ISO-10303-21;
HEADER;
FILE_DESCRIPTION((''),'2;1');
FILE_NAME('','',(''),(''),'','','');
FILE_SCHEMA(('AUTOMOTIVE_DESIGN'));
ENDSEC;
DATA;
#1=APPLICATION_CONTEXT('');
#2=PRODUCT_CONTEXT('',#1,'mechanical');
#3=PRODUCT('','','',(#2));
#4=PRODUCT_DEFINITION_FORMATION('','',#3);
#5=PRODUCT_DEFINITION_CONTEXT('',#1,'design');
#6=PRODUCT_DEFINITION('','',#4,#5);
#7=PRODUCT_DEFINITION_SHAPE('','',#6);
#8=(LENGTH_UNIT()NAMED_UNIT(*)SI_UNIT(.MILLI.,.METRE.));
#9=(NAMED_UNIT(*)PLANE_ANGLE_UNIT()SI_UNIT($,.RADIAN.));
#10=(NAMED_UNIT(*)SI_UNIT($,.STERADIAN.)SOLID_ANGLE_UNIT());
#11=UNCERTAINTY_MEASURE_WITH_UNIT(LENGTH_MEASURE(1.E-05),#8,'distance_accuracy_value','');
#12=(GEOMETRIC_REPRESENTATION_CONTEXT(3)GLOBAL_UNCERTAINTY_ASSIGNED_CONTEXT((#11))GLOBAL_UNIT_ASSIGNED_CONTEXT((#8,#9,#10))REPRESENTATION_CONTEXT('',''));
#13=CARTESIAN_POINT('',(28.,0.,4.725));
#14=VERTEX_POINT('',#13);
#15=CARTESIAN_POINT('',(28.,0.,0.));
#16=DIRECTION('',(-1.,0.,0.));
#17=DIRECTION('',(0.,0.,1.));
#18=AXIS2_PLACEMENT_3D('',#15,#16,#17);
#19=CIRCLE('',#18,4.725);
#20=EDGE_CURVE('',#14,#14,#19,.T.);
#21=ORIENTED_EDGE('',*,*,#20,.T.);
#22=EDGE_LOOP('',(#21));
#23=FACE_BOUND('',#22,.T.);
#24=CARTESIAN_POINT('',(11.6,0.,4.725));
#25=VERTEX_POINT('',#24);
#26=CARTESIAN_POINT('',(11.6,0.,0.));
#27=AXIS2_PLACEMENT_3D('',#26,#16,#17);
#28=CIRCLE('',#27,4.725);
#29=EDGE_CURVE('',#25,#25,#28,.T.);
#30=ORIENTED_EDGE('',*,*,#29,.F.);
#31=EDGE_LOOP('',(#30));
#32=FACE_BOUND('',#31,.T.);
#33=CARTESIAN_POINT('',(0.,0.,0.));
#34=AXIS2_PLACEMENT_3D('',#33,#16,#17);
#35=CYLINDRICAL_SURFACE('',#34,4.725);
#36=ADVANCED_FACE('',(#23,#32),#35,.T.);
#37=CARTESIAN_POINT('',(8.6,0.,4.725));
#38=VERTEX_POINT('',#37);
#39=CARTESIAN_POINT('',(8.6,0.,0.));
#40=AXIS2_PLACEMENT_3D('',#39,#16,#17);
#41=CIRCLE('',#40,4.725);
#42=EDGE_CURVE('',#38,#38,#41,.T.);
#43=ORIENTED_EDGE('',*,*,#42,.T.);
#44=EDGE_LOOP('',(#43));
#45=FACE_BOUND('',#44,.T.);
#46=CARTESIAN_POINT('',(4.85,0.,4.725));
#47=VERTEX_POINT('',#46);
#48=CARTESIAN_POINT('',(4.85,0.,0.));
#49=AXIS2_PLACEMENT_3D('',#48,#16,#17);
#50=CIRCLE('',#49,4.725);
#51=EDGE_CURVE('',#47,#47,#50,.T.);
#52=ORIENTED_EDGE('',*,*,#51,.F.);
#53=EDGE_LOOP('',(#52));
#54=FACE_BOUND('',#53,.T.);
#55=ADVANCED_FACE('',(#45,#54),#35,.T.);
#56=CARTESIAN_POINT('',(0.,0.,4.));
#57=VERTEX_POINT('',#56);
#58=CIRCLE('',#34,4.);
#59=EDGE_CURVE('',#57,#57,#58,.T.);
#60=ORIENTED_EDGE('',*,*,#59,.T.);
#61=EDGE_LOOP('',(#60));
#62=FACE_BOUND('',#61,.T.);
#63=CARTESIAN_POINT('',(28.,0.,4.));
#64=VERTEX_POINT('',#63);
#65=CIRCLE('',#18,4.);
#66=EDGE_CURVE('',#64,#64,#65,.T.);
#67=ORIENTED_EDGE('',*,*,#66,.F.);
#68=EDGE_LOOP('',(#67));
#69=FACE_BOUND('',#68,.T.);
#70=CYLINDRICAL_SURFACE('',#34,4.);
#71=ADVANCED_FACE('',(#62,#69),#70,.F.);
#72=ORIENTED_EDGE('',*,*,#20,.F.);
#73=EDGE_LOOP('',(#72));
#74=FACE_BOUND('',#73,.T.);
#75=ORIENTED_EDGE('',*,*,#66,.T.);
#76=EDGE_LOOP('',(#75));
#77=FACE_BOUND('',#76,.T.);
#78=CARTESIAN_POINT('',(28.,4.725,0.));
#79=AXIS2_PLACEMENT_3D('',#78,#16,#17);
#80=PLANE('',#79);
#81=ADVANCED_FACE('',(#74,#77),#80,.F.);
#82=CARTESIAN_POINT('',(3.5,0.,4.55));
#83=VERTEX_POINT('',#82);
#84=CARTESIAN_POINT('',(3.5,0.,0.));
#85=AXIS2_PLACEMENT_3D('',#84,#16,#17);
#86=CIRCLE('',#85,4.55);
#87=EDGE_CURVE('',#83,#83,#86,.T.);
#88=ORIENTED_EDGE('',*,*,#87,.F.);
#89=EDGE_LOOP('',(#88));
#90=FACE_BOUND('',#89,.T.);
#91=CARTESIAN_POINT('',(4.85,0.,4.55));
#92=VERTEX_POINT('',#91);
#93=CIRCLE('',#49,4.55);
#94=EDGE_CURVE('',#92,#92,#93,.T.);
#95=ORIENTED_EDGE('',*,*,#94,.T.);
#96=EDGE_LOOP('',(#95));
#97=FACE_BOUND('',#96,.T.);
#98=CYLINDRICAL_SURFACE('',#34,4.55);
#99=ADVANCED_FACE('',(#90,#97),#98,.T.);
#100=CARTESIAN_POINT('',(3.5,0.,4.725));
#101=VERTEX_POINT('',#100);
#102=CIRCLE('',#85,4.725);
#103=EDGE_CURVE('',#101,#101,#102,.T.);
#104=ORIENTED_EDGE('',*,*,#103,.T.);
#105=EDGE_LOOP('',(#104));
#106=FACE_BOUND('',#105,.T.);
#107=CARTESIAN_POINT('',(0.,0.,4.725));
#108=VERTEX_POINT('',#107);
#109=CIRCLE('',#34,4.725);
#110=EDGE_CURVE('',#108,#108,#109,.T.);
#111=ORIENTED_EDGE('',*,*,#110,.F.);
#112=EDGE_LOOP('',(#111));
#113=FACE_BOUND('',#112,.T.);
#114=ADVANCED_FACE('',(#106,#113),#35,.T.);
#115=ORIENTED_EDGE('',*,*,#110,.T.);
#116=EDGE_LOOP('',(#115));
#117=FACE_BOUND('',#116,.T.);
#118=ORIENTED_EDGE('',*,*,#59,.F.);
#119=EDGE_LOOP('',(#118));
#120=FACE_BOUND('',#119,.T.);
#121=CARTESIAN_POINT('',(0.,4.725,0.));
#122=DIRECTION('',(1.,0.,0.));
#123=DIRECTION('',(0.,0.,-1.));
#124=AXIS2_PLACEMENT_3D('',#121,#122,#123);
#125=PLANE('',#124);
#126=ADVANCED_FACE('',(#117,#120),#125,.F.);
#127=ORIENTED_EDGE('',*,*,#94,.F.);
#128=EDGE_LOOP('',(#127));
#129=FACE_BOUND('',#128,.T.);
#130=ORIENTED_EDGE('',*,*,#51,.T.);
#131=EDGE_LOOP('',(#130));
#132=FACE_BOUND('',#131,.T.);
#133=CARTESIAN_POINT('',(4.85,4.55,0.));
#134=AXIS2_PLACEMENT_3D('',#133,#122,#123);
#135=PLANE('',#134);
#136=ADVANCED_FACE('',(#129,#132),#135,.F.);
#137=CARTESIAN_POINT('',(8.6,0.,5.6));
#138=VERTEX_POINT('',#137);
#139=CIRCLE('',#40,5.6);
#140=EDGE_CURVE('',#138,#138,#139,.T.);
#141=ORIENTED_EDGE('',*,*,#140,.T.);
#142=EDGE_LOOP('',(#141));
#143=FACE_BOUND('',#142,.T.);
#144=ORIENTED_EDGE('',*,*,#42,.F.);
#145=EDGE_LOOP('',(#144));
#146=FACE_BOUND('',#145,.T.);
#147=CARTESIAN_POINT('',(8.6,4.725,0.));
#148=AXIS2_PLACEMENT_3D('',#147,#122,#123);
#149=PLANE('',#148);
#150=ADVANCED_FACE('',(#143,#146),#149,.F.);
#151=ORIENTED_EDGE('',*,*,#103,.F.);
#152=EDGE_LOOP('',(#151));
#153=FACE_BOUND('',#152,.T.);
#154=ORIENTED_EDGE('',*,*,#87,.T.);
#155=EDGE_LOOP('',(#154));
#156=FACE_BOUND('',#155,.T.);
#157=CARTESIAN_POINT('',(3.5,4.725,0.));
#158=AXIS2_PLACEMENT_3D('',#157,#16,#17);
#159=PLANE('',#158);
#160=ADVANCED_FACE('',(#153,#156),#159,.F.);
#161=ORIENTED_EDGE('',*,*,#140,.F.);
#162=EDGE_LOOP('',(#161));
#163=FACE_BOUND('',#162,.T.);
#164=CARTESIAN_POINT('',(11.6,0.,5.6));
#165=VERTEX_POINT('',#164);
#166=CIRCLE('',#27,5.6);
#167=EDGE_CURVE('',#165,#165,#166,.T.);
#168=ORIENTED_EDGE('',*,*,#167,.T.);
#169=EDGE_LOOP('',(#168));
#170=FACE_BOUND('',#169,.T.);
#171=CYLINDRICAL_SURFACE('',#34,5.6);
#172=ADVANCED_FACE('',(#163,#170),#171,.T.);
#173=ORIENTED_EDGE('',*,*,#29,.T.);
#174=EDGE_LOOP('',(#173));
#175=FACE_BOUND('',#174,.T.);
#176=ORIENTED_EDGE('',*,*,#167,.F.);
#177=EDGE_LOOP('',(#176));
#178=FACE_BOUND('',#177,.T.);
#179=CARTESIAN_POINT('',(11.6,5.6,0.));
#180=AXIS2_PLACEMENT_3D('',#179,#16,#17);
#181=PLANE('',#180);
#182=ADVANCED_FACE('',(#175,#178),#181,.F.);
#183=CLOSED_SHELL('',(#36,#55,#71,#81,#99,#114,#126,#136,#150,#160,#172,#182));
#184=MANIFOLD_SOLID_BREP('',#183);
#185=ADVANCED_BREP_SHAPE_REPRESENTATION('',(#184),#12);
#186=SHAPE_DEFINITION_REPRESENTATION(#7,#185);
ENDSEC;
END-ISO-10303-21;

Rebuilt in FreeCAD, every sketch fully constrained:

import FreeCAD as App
import Part
import Sketcher

V = App.Vector
Q = App.Units.Quantity

doc = App.newDocument("Part")
body = doc.addObject("PartDesign::Body", "Body")

# Sketch on XY plane
sketch1 = body.newObject("Sketcher::SketchObject", "Sketch")
sketch1.AttachmentSupport = (doc.getObject("XY_Plane"), [""])
sketch1.MapMode = "FlatFace"
sketch1.addGeometry(Part.LineSegment(V(3.5, 4.72, 0), V(0, 4.72, 0)), False)
sketch1.addGeometry(Part.LineSegment(V(0, 4.72, 0), V(0, 4, 0)), False)
sketch1.addGeometry(Part.LineSegment(V(0, 4, 0), V(28, 4, 0)), False)
sketch1.addGeometry(Part.LineSegment(V(28, 4, 0), V(28, 4.72, 0)), False)
sketch1.addGeometry(Part.LineSegment(V(28, 4.72, 0), V(11.6, 4.72, 0)), False)
sketch1.addGeometry(Part.LineSegment(V(11.6, 4.72, 0), V(11.6, 5.6, 0)), False)
sketch1.addGeometry(Part.LineSegment(V(11.6, 5.6, 0), V(8.6, 5.6, 0)), False)
sketch1.addGeometry(Part.LineSegment(V(8.6, 5.6, 0), V(8.6, 4.72, 0)), False)
sketch1.addGeometry(Part.LineSegment(V(8.6, 4.72, 0), V(4.85, 4.72, 0)), False)
sketch1.addGeometry(Part.LineSegment(V(4.85, 4.72, 0), V(4.85, 4.55, 0)), False)
sketch1.addGeometry(Part.LineSegment(V(4.85, 4.55, 0), V(3.5, 4.55, 0)), False)
sketch1.addGeometry(Part.LineSegment(V(3.5, 4.55, 0), V(3.5, 4.72, 0)), False)
sketch1.addConstraint(Sketcher.Constraint("Coincident", 0, 2, 1, 1))
sketch1.addConstraint(Sketcher.Constraint("Coincident", 1, 2, 2, 1))
sketch1.addConstraint(Sketcher.Constraint("Coincident", 2, 2, 3, 1))
sketch1.addConstraint(Sketcher.Constraint("Coincident", 3, 2, 4, 1))
sketch1.addConstraint(Sketcher.Constraint("Coincident", 4, 2, 5, 1))
sketch1.addConstraint(Sketcher.Constraint("Coincident", 5, 2, 6, 1))
sketch1.addConstraint(Sketcher.Constraint("Coincident", 6, 2, 7, 1))
sketch1.addConstraint(Sketcher.Constraint("Coincident", 7, 2, 8, 1))
sketch1.addConstraint(Sketcher.Constraint("Coincident", 8, 2, 9, 1))
sketch1.addConstraint(Sketcher.Constraint("Coincident", 9, 2, 10, 1))
sketch1.addConstraint(Sketcher.Constraint("Coincident", 10, 2, 11, 1))
sketch1.addConstraint(Sketcher.Constraint("Coincident", 11, 2, 0, 1))
sketch1.addConstraint(Sketcher.Constraint("Horizontal", 0))
sketch1.addConstraint(Sketcher.Constraint("Vertical", 1))
sketch1.addConstraint(Sketcher.Constraint("Horizontal", 2))
sketch1.addConstraint(Sketcher.Constraint("Vertical", 3))
sketch1.addConstraint(Sketcher.Constraint("Horizontal", 4))
sketch1.addConstraint(Sketcher.Constraint("Vertical", 5))
sketch1.addConstraint(Sketcher.Constraint("Horizontal", 6))
sketch1.addConstraint(Sketcher.Constraint("Vertical", 7))
sketch1.addConstraint(Sketcher.Constraint("Horizontal", 8))
sketch1.addConstraint(Sketcher.Constraint("Vertical", 9))
sketch1.addConstraint(Sketcher.Constraint("Horizontal", 10))
sketch1.addConstraint(Sketcher.Constraint("Vertical", 11))
sketch1.addConstraint(Sketcher.Constraint("PointOnObject", 0, 2, -2))
sketch1.addConstraint(Sketcher.Constraint("Horizontal", 0, 2, 3, 2))
sketch1.addConstraint(Sketcher.Constraint("Horizontal", 4, 2, 7, 2))
sketch1.addConstraint(Sketcher.Constraint("DistanceX", 2, 1, 2, 2, Q("28 mm")))
sketch1.addConstraint(Sketcher.Constraint("DistanceX", 6, 2, 6, 1, Q("3 mm")))
sketch1.addConstraint(Sketcher.Constraint("DistanceX", 0, 2, 0, 1, Q("3.5 mm")))
sketch1.addConstraint(Sketcher.Constraint("DistanceX", 4, 2, 4, 1, Q("16.4 mm")))
sketch1.addConstraint(Sketcher.Constraint("DistanceY", -1, 1, 1, 2, Q("4 mm")))
sketch1.addConstraint(Sketcher.Constraint("DistanceX", 8, 2, 8, 1, Q("3.75 mm")))
sketch1.addConstraint(Sketcher.Constraint("DistanceY", -1, 1, 5, 2, Q("5.6 mm")))
sketch1.addConstraint(Sketcher.Constraint("DistanceY", 1, 2, 1, 1, Q("0.725 mm")))
sketch1.addConstraint(Sketcher.Constraint("DistanceY", 9, 2, 9, 1, Q("0.175 mm")))
revolution = body.newObject("PartDesign::Revolution", "Revolution")
revolution.Profile = sketch1
revolution.ReferenceAxis = (sketch1, ["H_Axis"])
revolution.Angle = 360

doc.recompute()
